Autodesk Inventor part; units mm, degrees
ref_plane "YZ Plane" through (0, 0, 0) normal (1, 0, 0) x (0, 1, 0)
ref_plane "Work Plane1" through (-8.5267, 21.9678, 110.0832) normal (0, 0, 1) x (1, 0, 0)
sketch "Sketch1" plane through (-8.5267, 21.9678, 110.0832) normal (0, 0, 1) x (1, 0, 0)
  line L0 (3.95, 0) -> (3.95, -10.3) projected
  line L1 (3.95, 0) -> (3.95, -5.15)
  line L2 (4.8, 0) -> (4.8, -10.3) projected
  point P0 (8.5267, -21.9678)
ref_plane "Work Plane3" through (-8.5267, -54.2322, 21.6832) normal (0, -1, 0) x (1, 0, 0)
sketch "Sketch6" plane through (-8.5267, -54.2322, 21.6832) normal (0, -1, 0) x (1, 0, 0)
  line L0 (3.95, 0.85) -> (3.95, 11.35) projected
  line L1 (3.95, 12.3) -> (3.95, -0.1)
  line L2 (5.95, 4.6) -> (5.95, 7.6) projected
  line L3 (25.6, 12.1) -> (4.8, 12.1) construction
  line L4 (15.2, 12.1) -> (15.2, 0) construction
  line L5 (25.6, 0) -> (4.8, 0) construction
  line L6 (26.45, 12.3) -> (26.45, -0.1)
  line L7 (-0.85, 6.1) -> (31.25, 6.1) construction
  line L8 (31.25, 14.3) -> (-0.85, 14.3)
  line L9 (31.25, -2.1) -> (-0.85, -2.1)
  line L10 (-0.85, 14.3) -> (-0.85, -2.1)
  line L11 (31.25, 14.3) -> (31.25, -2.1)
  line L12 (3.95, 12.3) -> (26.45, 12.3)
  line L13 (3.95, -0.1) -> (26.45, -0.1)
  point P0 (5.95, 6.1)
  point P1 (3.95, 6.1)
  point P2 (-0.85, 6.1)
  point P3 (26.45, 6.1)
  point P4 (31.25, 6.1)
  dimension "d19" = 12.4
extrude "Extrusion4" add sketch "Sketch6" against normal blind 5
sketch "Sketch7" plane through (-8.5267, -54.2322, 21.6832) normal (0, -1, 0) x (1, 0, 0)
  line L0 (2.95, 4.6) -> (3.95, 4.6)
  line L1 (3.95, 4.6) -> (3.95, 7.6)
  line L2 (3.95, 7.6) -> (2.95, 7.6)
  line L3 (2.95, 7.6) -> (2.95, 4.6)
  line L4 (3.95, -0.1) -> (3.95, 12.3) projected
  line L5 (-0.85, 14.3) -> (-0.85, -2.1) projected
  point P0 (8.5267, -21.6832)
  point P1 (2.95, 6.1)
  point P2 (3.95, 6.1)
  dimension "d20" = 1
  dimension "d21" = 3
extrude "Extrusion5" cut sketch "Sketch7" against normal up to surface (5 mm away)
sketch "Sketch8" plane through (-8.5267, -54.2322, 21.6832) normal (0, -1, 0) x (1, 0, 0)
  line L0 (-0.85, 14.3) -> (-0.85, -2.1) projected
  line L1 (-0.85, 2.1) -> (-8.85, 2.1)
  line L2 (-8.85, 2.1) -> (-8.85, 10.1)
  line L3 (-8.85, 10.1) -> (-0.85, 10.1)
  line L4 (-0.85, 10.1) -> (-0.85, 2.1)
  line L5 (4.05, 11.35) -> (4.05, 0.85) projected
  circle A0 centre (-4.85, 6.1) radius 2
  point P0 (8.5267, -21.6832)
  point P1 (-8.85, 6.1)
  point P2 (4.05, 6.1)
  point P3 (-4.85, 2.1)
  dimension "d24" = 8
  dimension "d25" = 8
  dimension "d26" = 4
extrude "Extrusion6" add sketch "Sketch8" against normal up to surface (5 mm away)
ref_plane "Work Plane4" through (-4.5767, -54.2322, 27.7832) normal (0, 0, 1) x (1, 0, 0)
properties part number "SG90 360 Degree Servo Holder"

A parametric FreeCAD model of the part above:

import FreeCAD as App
import Part
import Sketcher
Q = App.Units.Quantity

doc = App.newDocument("Part")
body = doc.addObject("PartDesign::Body", "Body")

sketch1 = body.newObject("Sketcher::SketchObject", "Sketch")
sketch1.AttachmentSupport = (doc.getObject("XZ_Plane"), [""])
sketch1.MapMode = "FlatFace"
sketch1.AttachmentOffset = App.Placement(App.Vector(0, 0, 54.2322), App.Rotation())
sketch1.addGeometry(Part.LineSegment(App.Vector(23, 20, 0), App.Vector(23, 36, 0)), False)
sketch1.addGeometry(Part.LineSegment(App.Vector(23, 36, 0), App.Vector(-9, 36, 0)), False)
sketch1.addGeometry(Part.LineSegment(App.Vector(-9, 36, 0), App.Vector(-9, 20, 0)), False)
sketch1.addGeometry(Part.LineSegment(App.Vector(-9, 20, 0), App.Vector(23, 20, 0)), False)
sketch1.addGeometry(Part.LineSegment(App.Vector(-5, 22, 0), App.Vector(-5, 34, 0)), False)
sketch1.addGeometry(Part.LineSegment(App.Vector(-5, 34, 0), App.Vector(18, 34, 0)), False)
sketch1.addGeometry(Part.LineSegment(App.Vector(18, 34, 0), App.Vector(18, 22, 0)), False)
sketch1.addGeometry(Part.LineSegment(App.Vector(18, 22, 0), App.Vector(-5, 22, 0)), False)
sketch1.addConstraint(Sketcher.Constraint("Coincident", 0, 2, 1, 1))
sketch1.addConstraint(Sketcher.Constraint("Coincident", 1, 2, 2, 1))
sketch1.addConstraint(Sketcher.Constraint("Coincident", 2, 2, 3, 1))
sketch1.addConstraint(Sketcher.Constraint("Coincident", 3, 2, 0, 1))
sketch1.addConstraint(Sketcher.Constraint("Coincident", 4, 2, 5, 1))
sketch1.addConstraint(Sketcher.Constraint("Coincident", 5, 2, 6, 1))
sketch1.addConstraint(Sketcher.Constraint("Coincident", 6, 2, 7, 1))
sketch1.addConstraint(Sketcher.Constraint("Coincident", 7, 2, 4, 1))
sketch1.addConstraint(Sketcher.Constraint("Vertical", 0))
sketch1.addConstraint(Sketcher.Constraint("Horizontal", 1))
sketch1.addConstraint(Sketcher.Constraint("Vertical", 2))
sketch1.addConstraint(Sketcher.Constraint("Horizontal", 3))
sketch1.addConstraint(Sketcher.Constraint("Vertical", 4))
sketch1.addConstraint(Sketcher.Constraint("Horizontal", 5))
sketch1.addConstraint(Sketcher.Constraint("Vertical", 6))
sketch1.addConstraint(Sketcher.Constraint("Horizontal", 7))
sketch1.addConstraint(Sketcher.Constraint("DistanceY", 4, 1, 4, 2, Q("12.4 mm")))
sketch1.addConstraint(Sketcher.Constraint("DistanceX", 1, 2, 1, 1, Q("32.1 mm")))
sketch1.addConstraint(Sketcher.Constraint("DistanceX", 5, 1, 5, 2, Q("22.5 mm")))
sketch1.addConstraint(Sketcher.Constraint("DistanceY", 0, 1, 0, 2, Q("16.4 mm")))
sketch1.addConstraint(Sketcher.Constraint("DistanceY", 4, 2, 1, 2, Q("2 mm")))
sketch1.addConstraint(Sketcher.Constraint("DistanceX", 1, 2, 4, 2, Q("4.8 mm")))
sketch1.addConstraint(Sketcher.Constraint("DistanceX", -1, 1, 0, 2, Q("22.7233 mm")))
sketch1.addConstraint(Sketcher.Constraint("DistanceY", -1, 1, 0, 2, Q("35.9832 mm")))
pad1 = body.newObject("PartDesign::Pad", "Pad")
pad1.Profile = sketch1
pad1.Length = 5
pad1.Reversed = True

sketch2 = body.newObject("Sketcher::SketchObject", "Sketch001")
sketch2.AttachmentSupport = (doc.getObject("XZ_Plane"), [""])
sketch2.MapMode = "FlatFace"
sketch2.AttachmentOffset = App.Placement(App.Vector(0, 0, 54.2322), App.Rotation())
sketch2.addGeometry(Part.LineSegment(App.Vector(-5.6, 29.3, 0), App.Vector(-5.6, 26.3, 0)), False)
sketch2.addGeometry(Part.LineSegment(App.Vector(-5.6, 26.3, 0), App.Vector(-4.6, 26.3, 0)), False)
sketch2.addGeometry(Part.LineSegment(App.Vector(-4.6, 26.3, 0), App.Vector(-4.6, 29.3, 0)), False)
sketch2.addGeometry(Part.LineSegment(App.Vector(-4.6, 29.3, 0), App.Vector(-5.6, 29.3, 0)), False)
sketch2.addConstraint(Sketcher.Constraint("Coincident", 0, 2, 1, 1))
sketch2.addConstraint(Sketcher.Constraint("Coincident", 1, 2, 2, 1))
sketch2.addConstraint(Sketcher.Constraint("Coincident", 2, 2, 3, 1))
sketch2.addConstraint(Sketcher.Constraint("Coincident", 3, 2, 0, 1))
sketch2.addConstraint(Sketcher.Constraint("Vertical", 0))
sketch2.addConstraint(Sketcher.Constraint("Horizontal", 1))
sketch2.addConstraint(Sketcher.Constraint("Vertical", 2))
sketch2.addConstraint(Sketcher.Constraint("Horizontal", 3))
sketch2.addConstraint(Sketcher.Constraint("DistanceX", 1, 1, 1, 2, Q("1 mm")))
sketch2.addConstraint(Sketcher.Constraint("DistanceY", 0, 2, 0, 1, Q("3 mm")))
sketch2.addConstraint(Sketcher.Constraint("DistanceX", 0, 2, -1, 1, Q("5.5767 mm")))
sketch2.addConstraint(Sketcher.Constraint("DistanceY", -1, 1, 0, 2, Q("26.2832 mm")))
pocket1 = body.newObject("PartDesign::Pocket", "Pocket")
pocket1.Profile = sketch2
pocket1.Length = 5

sketch3 = body.newObject("Sketcher::SketchObject", "Sketch002")
sketch3.AttachmentSupport = (doc.getObject("XZ_Plane"), [""])
sketch3.MapMode = "FlatFace"
sketch3.AttachmentOffset = App.Placement(App.Vector(0, 0, 54.2322), App.Rotation())
sketch3.addGeometry(Part.LineSegment(App.Vector(-9.4, 23.8, 0), App.Vector(-9.4, 31.8, 0)), False)
sketch3.addGeometry(Part.LineSegment(App.Vector(-9.4, 31.8, 0), App.Vector(-17.4, 31.8, 0)), False)
sketch3.addGeometry(Part.LineSegment(App.Vector(-17.4, 31.8, 0), App.Vector(-17.4, 23.8, 0)), False)
sketch3.addGeometry(Part.LineSegment(App.Vector(-17.4, 23.8, 0), App.Vector(-9.4, 23.8, 0)), False)
sketch3.addGeometry(Part.Circle(App.Vector(-13.4, 27.8, 0), App.Vector(0, 0, 1), 2), False)
sketch3.addConstraint(Sketcher.Constraint("Coincident", 0, 2, 1, 1))
sketch3.addConstraint(Sketcher.Constraint("Coincident", 1, 2, 2, 1))
sketch3.addConstraint(Sketcher.Constraint("Coincident", 2, 2, 3, 1))
sketch3.addConstraint(Sketcher.Constraint("Coincident", 3, 2, 0, 1))
sketch3.addConstraint(Sketcher.Constraint("Vertical", 0))
sketch3.addConstraint(Sketcher.Constraint("Horizontal", 1))
sketch3.addConstraint(Sketcher.Constraint("Vertical", 2))
sketch3.addConstraint(Sketcher.Constraint("Horizontal", 3))
sketch3.addConstraint(Sketcher.Constraint("Equal", 3, 0))
sketch3.addConstraint(Sketcher.Constraint("Diameter", 4, Q("4 mm")))
sketch3.addConstraint(Sketcher.Constraint("DistanceX", 1, 2, 1, 1, Q("8 mm")))
sketch3.addConstraint(Sketcher.Constraint("DistanceX", 4, 3, 0, 2, Q("4 mm")))
sketch3.addConstraint(Sketcher.Constraint("DistanceY", 4, 3, 0, 2, Q("4 mm")))
sketch3.addConstraint(Sketcher.Constraint("DistanceX", 4, 3, -1, 1, Q("13.3767 mm")))
sketch3.addConstraint(Sketcher.Constraint("DistanceY", -1, 1, 4, 3, Q("27.7832 mm")))
pad2 = body.newObject("PartDesign::Pad", "Pad001")
pad2.Profile = sketch3
pad2.Length = 5
pad2.Reversed = True

doc.recompute()
